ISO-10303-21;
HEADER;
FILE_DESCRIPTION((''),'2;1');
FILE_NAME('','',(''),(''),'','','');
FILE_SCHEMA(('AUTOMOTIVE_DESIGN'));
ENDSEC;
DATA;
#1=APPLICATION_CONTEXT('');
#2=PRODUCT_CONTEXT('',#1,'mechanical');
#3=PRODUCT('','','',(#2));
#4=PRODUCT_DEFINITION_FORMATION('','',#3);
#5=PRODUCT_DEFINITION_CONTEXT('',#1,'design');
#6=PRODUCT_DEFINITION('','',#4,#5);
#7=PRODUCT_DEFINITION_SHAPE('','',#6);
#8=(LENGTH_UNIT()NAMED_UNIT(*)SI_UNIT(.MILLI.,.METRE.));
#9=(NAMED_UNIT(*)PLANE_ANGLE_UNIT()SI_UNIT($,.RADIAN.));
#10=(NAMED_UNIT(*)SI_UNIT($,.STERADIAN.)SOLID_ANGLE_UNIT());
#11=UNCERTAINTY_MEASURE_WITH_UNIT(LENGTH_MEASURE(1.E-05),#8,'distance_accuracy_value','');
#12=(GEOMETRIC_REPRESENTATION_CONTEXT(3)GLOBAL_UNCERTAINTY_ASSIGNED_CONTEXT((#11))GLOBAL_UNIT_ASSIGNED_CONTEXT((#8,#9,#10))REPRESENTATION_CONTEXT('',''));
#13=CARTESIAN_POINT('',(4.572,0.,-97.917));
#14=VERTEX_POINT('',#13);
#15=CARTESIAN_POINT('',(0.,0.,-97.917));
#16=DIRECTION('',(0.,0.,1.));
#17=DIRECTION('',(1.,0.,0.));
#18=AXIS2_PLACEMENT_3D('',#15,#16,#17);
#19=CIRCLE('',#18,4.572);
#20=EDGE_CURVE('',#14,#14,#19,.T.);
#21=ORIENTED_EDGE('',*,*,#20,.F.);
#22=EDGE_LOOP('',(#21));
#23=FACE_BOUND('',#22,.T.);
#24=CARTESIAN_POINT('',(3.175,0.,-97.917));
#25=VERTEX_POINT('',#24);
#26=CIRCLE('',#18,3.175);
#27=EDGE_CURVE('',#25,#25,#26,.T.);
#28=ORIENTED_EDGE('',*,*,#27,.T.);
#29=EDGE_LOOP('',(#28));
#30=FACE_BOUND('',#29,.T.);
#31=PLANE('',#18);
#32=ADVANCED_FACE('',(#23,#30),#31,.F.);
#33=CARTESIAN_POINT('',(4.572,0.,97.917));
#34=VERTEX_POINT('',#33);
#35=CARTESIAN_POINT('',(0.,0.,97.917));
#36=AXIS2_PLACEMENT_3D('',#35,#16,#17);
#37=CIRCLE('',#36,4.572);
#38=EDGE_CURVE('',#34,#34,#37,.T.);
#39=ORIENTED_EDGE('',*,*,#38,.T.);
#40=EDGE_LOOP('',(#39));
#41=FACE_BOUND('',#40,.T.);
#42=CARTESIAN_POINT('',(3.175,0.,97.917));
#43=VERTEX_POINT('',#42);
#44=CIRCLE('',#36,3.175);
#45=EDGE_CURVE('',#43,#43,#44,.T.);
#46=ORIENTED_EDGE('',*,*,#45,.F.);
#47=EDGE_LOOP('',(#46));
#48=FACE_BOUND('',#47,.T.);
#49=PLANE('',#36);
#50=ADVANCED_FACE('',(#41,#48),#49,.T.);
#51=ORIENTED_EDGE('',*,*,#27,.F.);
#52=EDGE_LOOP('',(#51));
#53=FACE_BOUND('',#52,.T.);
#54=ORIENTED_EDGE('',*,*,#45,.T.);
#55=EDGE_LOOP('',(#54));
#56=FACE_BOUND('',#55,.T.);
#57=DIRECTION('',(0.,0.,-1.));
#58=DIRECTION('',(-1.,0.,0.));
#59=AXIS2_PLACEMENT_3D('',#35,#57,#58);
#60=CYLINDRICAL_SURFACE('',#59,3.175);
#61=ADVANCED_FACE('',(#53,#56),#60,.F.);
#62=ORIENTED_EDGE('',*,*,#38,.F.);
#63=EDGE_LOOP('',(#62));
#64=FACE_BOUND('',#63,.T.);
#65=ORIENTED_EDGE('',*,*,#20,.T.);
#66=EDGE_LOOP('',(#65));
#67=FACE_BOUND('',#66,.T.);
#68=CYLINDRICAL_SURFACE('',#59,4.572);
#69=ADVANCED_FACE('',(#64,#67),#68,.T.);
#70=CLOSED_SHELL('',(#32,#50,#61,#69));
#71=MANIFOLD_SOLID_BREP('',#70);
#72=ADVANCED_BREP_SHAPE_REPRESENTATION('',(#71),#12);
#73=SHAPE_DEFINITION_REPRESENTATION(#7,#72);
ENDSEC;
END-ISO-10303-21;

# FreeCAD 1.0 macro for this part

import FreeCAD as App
import Part
import Sketcher

V = App.Vector
Q = App.Units.Quantity

doc = App.newDocument("Part")
body = doc.addObject("PartDesign::Body", "Body")

sketch1 = body.newObject("Sketcher::SketchObject", "Sketch")
sketch1.AttachmentSupport = (doc.getObject("XY_Plane"), [""])
sketch1.MapMode = "FlatFace"
sketch1.addGeometry([
    Part.Circle(V(0, 0, 0), V(0, 0, 1), 4.6),
    Part.Circle(V(0, 0, 0), V(0, 0, 1), 3.2),
], False)
sketch1.addConstraint([
    Sketcher.Constraint("Coincident", 0, 3, -1, 1),
    Sketcher.Constraint("Coincident", 1, 3, -1, 1),
    Sketcher.Constraint("Diameter", 0, Q("0.36 in")),
    Sketcher.Constraint("Diameter", 1, Q("0.25 in")),
])
pad1 = body.newObject("PartDesign::Pad", "Pad")
pad1.Profile = sketch1
pad1.Type = "TwoLengths"
pad1.Length = Q("3.855 in")
pad1.Length2 = Q("3.855 in")

doc.recompute()
